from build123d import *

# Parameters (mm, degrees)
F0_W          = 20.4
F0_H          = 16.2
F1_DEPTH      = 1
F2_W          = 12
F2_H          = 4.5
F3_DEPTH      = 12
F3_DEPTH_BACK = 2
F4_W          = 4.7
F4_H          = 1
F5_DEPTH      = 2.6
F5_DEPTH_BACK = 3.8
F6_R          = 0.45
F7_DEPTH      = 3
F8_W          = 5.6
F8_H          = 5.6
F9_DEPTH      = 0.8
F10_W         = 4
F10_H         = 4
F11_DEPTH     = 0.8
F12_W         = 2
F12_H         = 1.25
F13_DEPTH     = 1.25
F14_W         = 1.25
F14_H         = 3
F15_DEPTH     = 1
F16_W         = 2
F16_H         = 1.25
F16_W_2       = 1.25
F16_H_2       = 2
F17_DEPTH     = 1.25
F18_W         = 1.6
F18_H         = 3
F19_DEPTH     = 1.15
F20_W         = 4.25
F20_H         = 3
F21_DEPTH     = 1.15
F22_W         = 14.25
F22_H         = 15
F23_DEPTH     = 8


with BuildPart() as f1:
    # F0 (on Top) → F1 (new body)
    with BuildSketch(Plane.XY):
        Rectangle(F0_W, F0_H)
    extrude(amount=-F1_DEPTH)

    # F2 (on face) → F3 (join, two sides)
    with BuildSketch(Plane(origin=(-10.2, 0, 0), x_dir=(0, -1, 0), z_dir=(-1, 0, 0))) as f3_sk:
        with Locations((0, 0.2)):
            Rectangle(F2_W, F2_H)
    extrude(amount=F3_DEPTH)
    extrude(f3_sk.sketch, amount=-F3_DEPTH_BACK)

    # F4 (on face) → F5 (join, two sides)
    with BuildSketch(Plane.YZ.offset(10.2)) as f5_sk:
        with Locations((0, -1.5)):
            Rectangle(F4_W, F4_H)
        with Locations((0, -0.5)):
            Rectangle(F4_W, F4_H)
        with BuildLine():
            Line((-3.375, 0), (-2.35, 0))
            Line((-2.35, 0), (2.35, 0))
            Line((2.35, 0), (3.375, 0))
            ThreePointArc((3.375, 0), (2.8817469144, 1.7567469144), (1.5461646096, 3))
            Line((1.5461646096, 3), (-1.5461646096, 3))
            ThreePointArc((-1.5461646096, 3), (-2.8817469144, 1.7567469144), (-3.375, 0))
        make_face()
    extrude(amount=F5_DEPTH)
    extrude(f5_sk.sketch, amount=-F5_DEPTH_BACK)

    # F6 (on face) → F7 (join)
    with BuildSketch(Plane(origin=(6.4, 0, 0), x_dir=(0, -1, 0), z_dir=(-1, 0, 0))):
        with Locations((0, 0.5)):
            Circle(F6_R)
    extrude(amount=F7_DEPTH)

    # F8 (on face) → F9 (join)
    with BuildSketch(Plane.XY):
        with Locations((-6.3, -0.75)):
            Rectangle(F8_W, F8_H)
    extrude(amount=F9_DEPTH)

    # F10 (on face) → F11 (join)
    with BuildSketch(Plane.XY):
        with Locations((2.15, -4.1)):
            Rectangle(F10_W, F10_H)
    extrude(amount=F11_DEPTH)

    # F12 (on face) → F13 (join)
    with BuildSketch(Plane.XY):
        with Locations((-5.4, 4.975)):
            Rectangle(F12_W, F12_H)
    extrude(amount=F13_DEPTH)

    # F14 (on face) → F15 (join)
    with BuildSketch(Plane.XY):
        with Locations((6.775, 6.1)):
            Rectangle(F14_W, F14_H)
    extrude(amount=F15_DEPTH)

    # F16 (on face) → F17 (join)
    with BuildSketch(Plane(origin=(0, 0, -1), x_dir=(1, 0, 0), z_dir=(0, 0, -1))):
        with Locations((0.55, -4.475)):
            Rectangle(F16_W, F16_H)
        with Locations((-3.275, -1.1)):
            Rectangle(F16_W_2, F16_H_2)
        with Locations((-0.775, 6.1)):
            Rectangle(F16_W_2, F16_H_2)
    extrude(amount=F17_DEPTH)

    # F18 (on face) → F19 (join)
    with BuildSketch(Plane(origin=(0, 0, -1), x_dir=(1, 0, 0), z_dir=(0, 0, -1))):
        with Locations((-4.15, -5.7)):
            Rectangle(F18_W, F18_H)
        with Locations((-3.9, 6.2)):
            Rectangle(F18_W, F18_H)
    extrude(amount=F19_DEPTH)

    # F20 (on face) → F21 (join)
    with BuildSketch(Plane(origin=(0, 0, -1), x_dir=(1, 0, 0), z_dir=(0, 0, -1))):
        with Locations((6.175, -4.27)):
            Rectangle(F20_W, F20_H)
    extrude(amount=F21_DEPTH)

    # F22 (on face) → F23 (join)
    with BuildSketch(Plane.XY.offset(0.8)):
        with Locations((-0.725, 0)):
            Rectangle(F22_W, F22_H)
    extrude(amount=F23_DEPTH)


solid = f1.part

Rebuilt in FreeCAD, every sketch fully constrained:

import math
import FreeCAD as App
import Part
import Sketcher
Q = App.Units.Quantity


def add_polygon(sketch, points):
    """Adds a closed chain of lines whose ends are joined by coincident constraints."""
    first, n = sketch.GeometryCount, len(points)
    for a, b in zip(points, points[1:] + points[:1]):
        sketch.addGeometry(Part.LineSegment(App.Vector(*a, 0), App.Vector(*b, 0)), False)
    for i in range(n):
        sketch.addConstraint(Sketcher.Constraint("Coincident", first + i, 2, first + (i + 1) % n, 1))

doc = App.newDocument("Part")
body = doc.addObject("PartDesign::Body", "Body")

# Sketch on XY plane
sketch1 = body.newObject("Sketcher::SketchObject", "Sketch")
sketch1.AttachmentSupport = (doc.getObject("XY_Plane"), [""])
sketch1.MapMode = "FlatFace"
add_polygon(sketch1, [(-10, 8), (-10, -8), (10, -8), (10, 8)])  # lines 0-3
sketch1.addConstraint([
    Sketcher.Constraint("Vertical", 0),
    Sketcher.Constraint("Horizontal", 1),
    Sketcher.Constraint("Vertical", 2),
    Sketcher.Constraint("Horizontal", 3),
    Sketcher.Constraint("Symmetric", 0, 2, 2, 2, -1, 1),
    Sketcher.Constraint("DistanceX", 1, 1, 1, 2, Q("20.4 mm")),
    Sketcher.Constraint("DistanceY", 0, 2, 0, 1, Q("16.2 mm")),
])
pad1 = body.newObject("PartDesign::Pad", "Pad")
pad1.Profile = sketch1
pad1.Length = 1
pad1.Reversed = True

# Sketch on YZ plane
sketch2 = body.newObject("Sketcher::SketchObject", "Sketch001")
sketch2.AttachmentSupport = (doc.getObject("YZ_Plane"), [""])
sketch2.MapMode = "FlatFace"
sketch2.AttachmentOffset = App.Placement(App.Vector(0, 0, -10.2), App.Rotation())
add_polygon(sketch2, [(6, 2.5), (6, -2), (-6, -2), (-6, 2.5)])  # lines 0-3
sketch2.addConstraint([
    Sketcher.Constraint("Vertical", 0),
    Sketcher.Constraint("Horizontal", 1),
    Sketcher.Constraint("Vertical", 2),
    Sketcher.Constraint("Horizontal", 3),
    Sketcher.Constraint("DistanceX", 1, 2, 1, 1, Q("12 mm")),
    Sketcher.Constraint("DistanceY", 0, 2, 0, 1, Q("4.5 mm")),
    Sketcher.Constraint("DistanceX", -1, 1, 0, 2, Q("6 mm")),
    Sketcher.Constraint("DistanceY", 0, 2, -1, 1, Q("2.05 mm")),
])
pad2 = body.newObject("PartDesign::Pad", "Pad001")
pad2.Profile = sketch2
pad2.Type = "TwoLengths"
pad2.Length = 12
pad2.Length2 = 2
pad2.Reversed = True

# Sketch on YZ plane
sketch3 = body.newObject("Sketcher::SketchObject", "Sketch002")
sketch3.AttachmentSupport = (doc.getObject("YZ_Plane"), [""])
sketch3.MapMode = "FlatFace"
sketch3.AttachmentOffset = App.Placement(App.Vector(0, 0, 10.2), App.Rotation())
sketch3.addGeometry([
    Part.LineSegment(App.Vector(-2.4, -2, 0), App.Vector(2.4, -2, 0)),  # 0
    Part.LineSegment(App.Vector(2.4, -2, 0), App.Vector(2.4, 0, 0)),  # 1
    Part.LineSegment(App.Vector(2.4, 0, 0), App.Vector(3.4, 0, 0)),  # 2
    Part.ArcOfCircle(Part.Circle(App.Vector(0, 0, 0), App.Vector(0, 0, 1), 3.4), math.radians(0), math.radians(63)),  # 3
    Part.LineSegment(App.Vector(1.5, 3, 0), App.Vector(-1.5, 3, 0)),  # 4
    Part.ArcOfCircle(Part.Circle(App.Vector(0, 0, 0), App.Vector(0, 0, 1), 3.4), math.radians(117), math.radians(180)),  # 5
    Part.LineSegment(App.Vector(-3.4, 0, 0), App.Vector(-2.4, 0, 0)),  # 6
    Part.LineSegment(App.Vector(-2.4, 0, 0), App.Vector(-2.4, -2, 0)),  # 7
], False)
sketch3.addConstraint([
    Sketcher.Constraint("Coincident", 0, 2, 1, 1),
    Sketcher.Constraint("Coincident", 1, 2, 2, 1),
    Sketcher.Constraint("Coincident", 2, 2, 3, 1),
    Sketcher.Constraint("Coincident", 3, 2, 4, 1),
    Sketcher.Constraint("Coincident", 4, 2, 5, 1),
    Sketcher.Constraint("Coincident", 5, 2, 6, 1),
    Sketcher.Constraint("Coincident", 6, 2, 7, 1),
    Sketcher.Constraint("Coincident", 7, 2, 0, 1),
    Sketcher.Constraint("Horizontal", 0),
    Sketcher.Constraint("Vertical", 1),
    Sketcher.Constraint("Horizontal", 2),
    Sketcher.Constraint("Horizontal", 4),
    Sketcher.Constraint("Horizontal", 6),
    Sketcher.Constraint("Vertical", 7),
    Sketcher.Constraint("Coincident", 3, 3, -1, 1),
    Sketcher.Constraint("Coincident", 5, 3, -1, 1),
    Sketcher.Constraint("Equal", 3, 5),
    Sketcher.Constraint("Symmetric", 1, 2, 6, 2, -1, 1),
    Sketcher.Constraint("PointOnObject", 1, 2, -1),
    Sketcher.Constraint("DistanceY", 1, 1, 1, 2, Q("2 mm")),
    Sketcher.Constraint("DistanceX", 0, 1, 0, 2, Q("4.7 mm")),
    Sketcher.Constraint("DistanceY", -1, 1, 3, 2, Q("3 mm")),
    Sketcher.Constraint("Radius", 3, Q("3.375 mm")),
])
pad3 = body.newObject("PartDesign::Pad", "Pad002")
pad3.Profile = sketch3
pad3.Type = "TwoLengths"
pad3.Length = 2.6
pad3.Length2 = 3.8

# Sketch on YZ plane
sketch4 = body.newObject("Sketcher::SketchObject", "Sketch003")
sketch4.AttachmentSupport = (doc.getObject("YZ_Plane"), [""])
sketch4.MapMode = "FlatFace"
sketch4.AttachmentOffset = App.Placement(App.Vector(0, 0, 6.4), App.Rotation())
sketch4.addGeometry(Part.Circle(App.Vector(0, 0.5, 0), App.Vector(0, 0, 1), 0.45), False)
sketch4.addConstraint([
    Sketcher.Constraint("PointOnObject", 0, 3, -2),
    Sketcher.Constraint("Diameter", 0, Q("0.9 mm")),
    Sketcher.Constraint("DistanceY", -1, 1, 0, 3, Q("0.5 mm")),
])
pad4 = body.newObject("PartDesign::Pad", "Pad003")
pad4.Profile = sketch4
pad4.Length = 3
pad4.Reversed = True

# Sketch on XY plane
sketch5 = body.newObject("Sketcher::SketchObject", "Sketch004")
sketch5.AttachmentSupport = (doc.getObject("XY_Plane"), [""])
sketch5.MapMode = "FlatFace"
add_polygon(sketch5, [(-9, 2), (-9, -4), (-4, -4), (-4, 2)])  # lines 0-3
sketch5.addConstraint([
    Sketcher.Constraint("Vertical", 0),
    Sketcher.Constraint("Horizontal", 1),
    Sketcher.Constraint("Vertical", 2),
    Sketcher.Constraint("Horizontal", 3),
    Sketcher.Constraint("Equal", 3, 0),
    Sketcher.Constraint("DistanceX", 1, 1, 1, 2, Q("5.6 mm")),
    Sketcher.Constraint("DistanceX", 0, 2, -1, 1, Q("9.1 mm")),
    Sketcher.Constraint("DistanceY", 0, 2, -1, 1, Q("3.55 mm")),
])
pad5 = body.newObject("PartDesign::Pad", "Pad004")
pad5.Profile = sketch5
pad5.Length = 0.8

# Sketch on XY plane
sketch6 = body.newObject("Sketcher::SketchObject", "Sketch005")
sketch6.AttachmentSupport = (doc.getObject("XY_Plane"), [""])
sketch6.MapMode = "FlatFace"
add_polygon(sketch6, [(0.1, -2.1), (0.1, -6.1), (4.2, -6.1), (4.2, -2.1)])  # lines 0-3
sketch6.addConstraint([
    Sketcher.Constraint("Vertical", 0),
    Sketcher.Constraint("Horizontal", 1),
    Sketcher.Constraint("Vertical", 2),
    Sketcher.Constraint("Horizontal", 3),
    Sketcher.Constraint("Equal", 3, 0),
    Sketcher.Constraint("DistanceX", 1, 1, 1, 2, Q("4 mm")),
    Sketcher.Constraint("DistanceY", 0, 2, -1, 1, Q("6.1 mm")),
    Sketcher.Constraint("DistanceX", -1, 1, 0, 2, Q("0.15 mm")),
])
pad6 = body.newObject("PartDesign::Pad", "Pad005")
pad6.Profile = sketch6
pad6.Length = 0.8

# Sketch on XY plane
sketch7 = body.newObject("Sketcher::SketchObject", "Sketch006")
sketch7.AttachmentSupport = (doc.getObject("XY_Plane"), [""])
sketch7.MapMode = "FlatFace"
add_polygon(sketch7, [(-6.4, 5.6), (-6.4, 4.3), (-4.4, 4.3), (-4.4, 5.6)])  # lines 0-3
sketch7.addConstraint([
    Sketcher.Constraint("Vertical", 0),
    Sketcher.Constraint("Horizontal", 1),
    Sketcher.Constraint("Vertical", 2),
    Sketcher.Constraint("Horizontal", 3),
    Sketcher.Constraint("DistanceX", 1, 1, 1, 2, Q("2 mm")),
    Sketcher.Constraint("DistanceY", 0, 2, 0, 1, Q("1.25 mm")),
    Sketcher.Constraint("DistanceX", 0, 2, -1, 1, Q("6.4 mm")),
    Sketcher.Constraint("DistanceY", -1, 1, 2, 2, Q("5.6 mm")),
])
pad7 = body.newObject("PartDesign::Pad", "Pad006")
pad7.Profile = sketch7
pad7.Length = 1.25

# Sketch on XY plane
sketch8 = body.newObject("Sketcher::SketchObject", "Sketch007")
sketch8.AttachmentSupport = (doc.getObject("XY_Plane"), [""])
sketch8.MapMode = "FlatFace"
add_polygon(sketch8, [(6.2, 7.6), (6.2, 4.6), (7.4, 4.6), (7.4, 7.6)])  # lines 0-3
sketch8.addConstraint([
    Sketcher.Constraint("Vertical", 0),
    Sketcher.Constraint("Horizontal", 1),
    Sketcher.Constraint("Vertical", 2),
    Sketcher.Constraint("Horizontal", 3),
    Sketcher.Constraint("DistanceY", 0, 2, 0, 1, Q("3 mm")),
    Sketcher.Constraint("DistanceX", 1, 1, 1, 2, Q("1.25 mm")),
    Sketcher.Constraint("DistanceY", -1, 1, 0, 2, Q("4.6 mm")),
    Sketcher.Constraint("DistanceX", -1, 1, 1, 2, Q("7.4 mm")),
])
pad8 = body.newObject("PartDesign::Pad", "Pad007")
pad8.Profile = sketch8
pad8.Length = 1

# Sketch on XY plane
sketch9 = body.newObject("Sketcher::SketchObject", "Sketch008")
sketch9.AttachmentSupport = (doc.getObject("XY_Plane"), [""])
sketch9.MapMode = "FlatFace"
sketch9.AttachmentOffset = App.Placement(App.Vector(0, 0, -1), App.Rotation())
add_polygon(sketch9, [(-0.5, 3.9), (-0.5, 5.1), (1.6, 5.1), (1.6, 3.9)])  # lines 0-3
add_polygon(sketch9, [(-3.9, 0.1), (-3.9, 2.1), (-2.6, 2.1), (-2.6, 0.1)])  # lines 4-7
add_polygon(sketch9, [(-1.4, -7.1), (-1.4, -5.1), (-0.1, -5.1), (-0.1, -7.1)])  # lines 8-11
sketch9.addConstraint([
    Sketcher.Constraint("Vertical", 0),
    Sketcher.Constraint("Horizontal", 1),
    Sketcher.Constraint("Vertical", 2),
    Sketcher.Constraint("Horizontal", 3),
    Sketcher.Constraint("Vertical", 4),
    Sketcher.Constraint("Horizontal", 5),
    Sketcher.Constraint("Vertical", 6),
    Sketcher.Constraint("Horizontal", 7),
    Sketcher.Constraint("Vertical", 8),
    Sketcher.Constraint("Horizontal", 9),
    Sketcher.Constraint("Vertical", 10),
    Sketcher.Constraint("Horizontal", 11),
    Sketcher.Constraint("Equal", 7, 9),
    Sketcher.Constraint("Equal", 11, 0),
    Sketcher.Constraint("Equal", 3, 4),
    Sketcher.Constraint("Equal", 6, 8),
    Sketcher.Constraint("DistanceX", 1, 1, 1, 2, Q("2 mm")),
    Sketcher.Constraint("DistanceY", 4, 2, 0, 2, Q("3 mm")),
    Sketcher.Constraint("DistanceX", 5, 1, 5, 2, Q("1.25 mm")),
    Sketcher.Constraint("DistanceY", -1, 1, 0, 2, Q("5.1 mm")),
    Sketcher.Constraint("DistanceX", 4, 2, -1, 1, Q("3.9 mm")),
    Sketcher.Constraint("DistanceX", 8, 2, -1, 1, Q("1.4 mm")),
    Sketcher.Constraint("DistanceY", 8, 2, -1, 1, Q("5.1 mm")),
    Sketcher.Constraint("DistanceX", 5, 2, 3, 2, Q("2.2 mm")),
])
pad9 = body.newObject("PartDesign::Pad", "Pad008")
pad9.Profile = sketch9
pad9.Length = 1.25
pad9.Reversed = True

# Sketch on XY plane
sketch10 = body.newObject("Sketcher::SketchObject", "Sketch009")
sketch10.AttachmentSupport = (doc.getObject("XY_Plane"), [""])
sketch10.MapMode = "FlatFace"
sketch10.AttachmentOffset = App.Placement(App.Vector(0, 0, -1), App.Rotation())
add_polygon(sketch10, [(-5, 4.2), (-5, 7.2), (-3.4, 7.2), (-3.4, 4.2)])  # lines 0-3
add_polygon(sketch10, [(-4.7, -7.7), (-4.7, -4.7), (-3.1, -4.7), (-3.1, -7.7)])  # lines 4-7
sketch10.addConstraint([
    Sketcher.Constraint("Vertical", 0),
    Sketcher.Constraint("Horizontal", 1),
    Sketcher.Constraint("Vertical", 2),
    Sketcher.Constraint("Horizontal", 3),
    Sketcher.Constraint("Vertical", 4),
    Sketcher.Constraint("Horizontal", 5),
    Sketcher.Constraint("Vertical", 6),
    Sketcher.Constraint("Horizontal", 7),
    Sketcher.Constraint("Equal", 3, 5),
    Sketcher.Constraint("Equal", 2, 4),
    Sketcher.Constraint("DistanceY", 0, 1, 0, 2, Q("3 mm")),
    Sketcher.Constraint("DistanceX", 1, 1, 1, 2, Q("1.6 mm")),
    Sketcher.Constraint("DistanceY", -1, 1, 0, 2, Q("7.2 mm")),
    Sketcher.Constraint("DistanceX", 4, 2, -1, 1, Q("4.7 mm")),
    Sketcher.Constraint("DistanceY", 4, 2, -1, 1, Q("4.7 mm")),
    Sketcher.Constraint("DistanceX", 0, 2, -1, 1, Q("4.95 mm")),
])
pad10 = body.newObject("PartDesign::Pad", "Pad009")
pad10.Profile = sketch10
pad10.Length = 1.15
pad10.Reversed = True

# Sketch on XY plane
sketch11 = body.newObject("Sketcher::SketchObject", "Sketch010")
sketch11.AttachmentSupport = (doc.getObject("XY_Plane"), [""])
sketch11.MapMode = "FlatFace"
sketch11.AttachmentOffset = App.Placement(App.Vector(0, 0, -1), App.Rotation())
add_polygon(sketch11, [(4, 2.8), (4, 5.8), (8.3, 5.8), (8.3, 2.8)])  # lines 0-3
sketch11.addConstraint([
    Sketcher.Constraint("Vertical", 0),
    Sketcher.Constraint("Horizontal", 1),
    Sketcher.Constraint("Vertical", 2),
    Sketcher.Constraint("Horizontal", 3),
    Sketcher.Constraint("DistanceY", 0, 1, 0, 2, Q("3 mm")),
    Sketcher.Constraint("DistanceX", 1, 1, 1, 2, Q("4.25 mm")),
    Sketcher.Constraint("DistanceX", -1, 1, 1, 2, Q("8.3 mm")),
    Sketcher.Constraint("DistanceY", -1, 1, 0, 2, Q("5.77 mm")),
])
pad11 = body.newObject("PartDesign::Pad", "Pad010")
pad11.Profile = sketch11
pad11.Length = 1.15
pad11.Reversed = True

# Sketch on XY plane
sketch12 = body.newObject("Sketcher::SketchObject", "Sketch011")
sketch12.AttachmentSupport = (doc.getObject("XY_Plane"), [""])
sketch12.MapMode = "FlatFace"
sketch12.AttachmentOffset = App.Placement(App.Vector(0, 0, 0.8), App.Rotation())
add_polygon(sketch12, [(-8, 8), (-8, -8), (6, -8), (6, 8)])  # lines 0-3
sketch12.addConstraint([
    Sketcher.Constraint("Vertical", 0),
    Sketcher.Constraint("Horizontal", 1),
    Sketcher.Constraint("Vertical", 2),
    Sketcher.Constraint("Horizontal", 3),
    Sketcher.Constraint("DistanceY", 0, 2, 0, 1, Q("15 mm")),
    Sketcher.Constraint("DistanceX", 1, 1, 1, 2, Q("14.25 mm")),
    Sketcher.Constraint("DistanceY", 0, 2, -1, 1, Q("7.5 mm")),
    Sketcher.Constraint("DistanceX", -1, 1, 1, 2, Q("6.4 mm")),
])
pad12 = body.newObject("PartDesign::Pad", "Pad011")
pad12.Profile = sketch12
pad12.Length = 8

doc.recompute()
